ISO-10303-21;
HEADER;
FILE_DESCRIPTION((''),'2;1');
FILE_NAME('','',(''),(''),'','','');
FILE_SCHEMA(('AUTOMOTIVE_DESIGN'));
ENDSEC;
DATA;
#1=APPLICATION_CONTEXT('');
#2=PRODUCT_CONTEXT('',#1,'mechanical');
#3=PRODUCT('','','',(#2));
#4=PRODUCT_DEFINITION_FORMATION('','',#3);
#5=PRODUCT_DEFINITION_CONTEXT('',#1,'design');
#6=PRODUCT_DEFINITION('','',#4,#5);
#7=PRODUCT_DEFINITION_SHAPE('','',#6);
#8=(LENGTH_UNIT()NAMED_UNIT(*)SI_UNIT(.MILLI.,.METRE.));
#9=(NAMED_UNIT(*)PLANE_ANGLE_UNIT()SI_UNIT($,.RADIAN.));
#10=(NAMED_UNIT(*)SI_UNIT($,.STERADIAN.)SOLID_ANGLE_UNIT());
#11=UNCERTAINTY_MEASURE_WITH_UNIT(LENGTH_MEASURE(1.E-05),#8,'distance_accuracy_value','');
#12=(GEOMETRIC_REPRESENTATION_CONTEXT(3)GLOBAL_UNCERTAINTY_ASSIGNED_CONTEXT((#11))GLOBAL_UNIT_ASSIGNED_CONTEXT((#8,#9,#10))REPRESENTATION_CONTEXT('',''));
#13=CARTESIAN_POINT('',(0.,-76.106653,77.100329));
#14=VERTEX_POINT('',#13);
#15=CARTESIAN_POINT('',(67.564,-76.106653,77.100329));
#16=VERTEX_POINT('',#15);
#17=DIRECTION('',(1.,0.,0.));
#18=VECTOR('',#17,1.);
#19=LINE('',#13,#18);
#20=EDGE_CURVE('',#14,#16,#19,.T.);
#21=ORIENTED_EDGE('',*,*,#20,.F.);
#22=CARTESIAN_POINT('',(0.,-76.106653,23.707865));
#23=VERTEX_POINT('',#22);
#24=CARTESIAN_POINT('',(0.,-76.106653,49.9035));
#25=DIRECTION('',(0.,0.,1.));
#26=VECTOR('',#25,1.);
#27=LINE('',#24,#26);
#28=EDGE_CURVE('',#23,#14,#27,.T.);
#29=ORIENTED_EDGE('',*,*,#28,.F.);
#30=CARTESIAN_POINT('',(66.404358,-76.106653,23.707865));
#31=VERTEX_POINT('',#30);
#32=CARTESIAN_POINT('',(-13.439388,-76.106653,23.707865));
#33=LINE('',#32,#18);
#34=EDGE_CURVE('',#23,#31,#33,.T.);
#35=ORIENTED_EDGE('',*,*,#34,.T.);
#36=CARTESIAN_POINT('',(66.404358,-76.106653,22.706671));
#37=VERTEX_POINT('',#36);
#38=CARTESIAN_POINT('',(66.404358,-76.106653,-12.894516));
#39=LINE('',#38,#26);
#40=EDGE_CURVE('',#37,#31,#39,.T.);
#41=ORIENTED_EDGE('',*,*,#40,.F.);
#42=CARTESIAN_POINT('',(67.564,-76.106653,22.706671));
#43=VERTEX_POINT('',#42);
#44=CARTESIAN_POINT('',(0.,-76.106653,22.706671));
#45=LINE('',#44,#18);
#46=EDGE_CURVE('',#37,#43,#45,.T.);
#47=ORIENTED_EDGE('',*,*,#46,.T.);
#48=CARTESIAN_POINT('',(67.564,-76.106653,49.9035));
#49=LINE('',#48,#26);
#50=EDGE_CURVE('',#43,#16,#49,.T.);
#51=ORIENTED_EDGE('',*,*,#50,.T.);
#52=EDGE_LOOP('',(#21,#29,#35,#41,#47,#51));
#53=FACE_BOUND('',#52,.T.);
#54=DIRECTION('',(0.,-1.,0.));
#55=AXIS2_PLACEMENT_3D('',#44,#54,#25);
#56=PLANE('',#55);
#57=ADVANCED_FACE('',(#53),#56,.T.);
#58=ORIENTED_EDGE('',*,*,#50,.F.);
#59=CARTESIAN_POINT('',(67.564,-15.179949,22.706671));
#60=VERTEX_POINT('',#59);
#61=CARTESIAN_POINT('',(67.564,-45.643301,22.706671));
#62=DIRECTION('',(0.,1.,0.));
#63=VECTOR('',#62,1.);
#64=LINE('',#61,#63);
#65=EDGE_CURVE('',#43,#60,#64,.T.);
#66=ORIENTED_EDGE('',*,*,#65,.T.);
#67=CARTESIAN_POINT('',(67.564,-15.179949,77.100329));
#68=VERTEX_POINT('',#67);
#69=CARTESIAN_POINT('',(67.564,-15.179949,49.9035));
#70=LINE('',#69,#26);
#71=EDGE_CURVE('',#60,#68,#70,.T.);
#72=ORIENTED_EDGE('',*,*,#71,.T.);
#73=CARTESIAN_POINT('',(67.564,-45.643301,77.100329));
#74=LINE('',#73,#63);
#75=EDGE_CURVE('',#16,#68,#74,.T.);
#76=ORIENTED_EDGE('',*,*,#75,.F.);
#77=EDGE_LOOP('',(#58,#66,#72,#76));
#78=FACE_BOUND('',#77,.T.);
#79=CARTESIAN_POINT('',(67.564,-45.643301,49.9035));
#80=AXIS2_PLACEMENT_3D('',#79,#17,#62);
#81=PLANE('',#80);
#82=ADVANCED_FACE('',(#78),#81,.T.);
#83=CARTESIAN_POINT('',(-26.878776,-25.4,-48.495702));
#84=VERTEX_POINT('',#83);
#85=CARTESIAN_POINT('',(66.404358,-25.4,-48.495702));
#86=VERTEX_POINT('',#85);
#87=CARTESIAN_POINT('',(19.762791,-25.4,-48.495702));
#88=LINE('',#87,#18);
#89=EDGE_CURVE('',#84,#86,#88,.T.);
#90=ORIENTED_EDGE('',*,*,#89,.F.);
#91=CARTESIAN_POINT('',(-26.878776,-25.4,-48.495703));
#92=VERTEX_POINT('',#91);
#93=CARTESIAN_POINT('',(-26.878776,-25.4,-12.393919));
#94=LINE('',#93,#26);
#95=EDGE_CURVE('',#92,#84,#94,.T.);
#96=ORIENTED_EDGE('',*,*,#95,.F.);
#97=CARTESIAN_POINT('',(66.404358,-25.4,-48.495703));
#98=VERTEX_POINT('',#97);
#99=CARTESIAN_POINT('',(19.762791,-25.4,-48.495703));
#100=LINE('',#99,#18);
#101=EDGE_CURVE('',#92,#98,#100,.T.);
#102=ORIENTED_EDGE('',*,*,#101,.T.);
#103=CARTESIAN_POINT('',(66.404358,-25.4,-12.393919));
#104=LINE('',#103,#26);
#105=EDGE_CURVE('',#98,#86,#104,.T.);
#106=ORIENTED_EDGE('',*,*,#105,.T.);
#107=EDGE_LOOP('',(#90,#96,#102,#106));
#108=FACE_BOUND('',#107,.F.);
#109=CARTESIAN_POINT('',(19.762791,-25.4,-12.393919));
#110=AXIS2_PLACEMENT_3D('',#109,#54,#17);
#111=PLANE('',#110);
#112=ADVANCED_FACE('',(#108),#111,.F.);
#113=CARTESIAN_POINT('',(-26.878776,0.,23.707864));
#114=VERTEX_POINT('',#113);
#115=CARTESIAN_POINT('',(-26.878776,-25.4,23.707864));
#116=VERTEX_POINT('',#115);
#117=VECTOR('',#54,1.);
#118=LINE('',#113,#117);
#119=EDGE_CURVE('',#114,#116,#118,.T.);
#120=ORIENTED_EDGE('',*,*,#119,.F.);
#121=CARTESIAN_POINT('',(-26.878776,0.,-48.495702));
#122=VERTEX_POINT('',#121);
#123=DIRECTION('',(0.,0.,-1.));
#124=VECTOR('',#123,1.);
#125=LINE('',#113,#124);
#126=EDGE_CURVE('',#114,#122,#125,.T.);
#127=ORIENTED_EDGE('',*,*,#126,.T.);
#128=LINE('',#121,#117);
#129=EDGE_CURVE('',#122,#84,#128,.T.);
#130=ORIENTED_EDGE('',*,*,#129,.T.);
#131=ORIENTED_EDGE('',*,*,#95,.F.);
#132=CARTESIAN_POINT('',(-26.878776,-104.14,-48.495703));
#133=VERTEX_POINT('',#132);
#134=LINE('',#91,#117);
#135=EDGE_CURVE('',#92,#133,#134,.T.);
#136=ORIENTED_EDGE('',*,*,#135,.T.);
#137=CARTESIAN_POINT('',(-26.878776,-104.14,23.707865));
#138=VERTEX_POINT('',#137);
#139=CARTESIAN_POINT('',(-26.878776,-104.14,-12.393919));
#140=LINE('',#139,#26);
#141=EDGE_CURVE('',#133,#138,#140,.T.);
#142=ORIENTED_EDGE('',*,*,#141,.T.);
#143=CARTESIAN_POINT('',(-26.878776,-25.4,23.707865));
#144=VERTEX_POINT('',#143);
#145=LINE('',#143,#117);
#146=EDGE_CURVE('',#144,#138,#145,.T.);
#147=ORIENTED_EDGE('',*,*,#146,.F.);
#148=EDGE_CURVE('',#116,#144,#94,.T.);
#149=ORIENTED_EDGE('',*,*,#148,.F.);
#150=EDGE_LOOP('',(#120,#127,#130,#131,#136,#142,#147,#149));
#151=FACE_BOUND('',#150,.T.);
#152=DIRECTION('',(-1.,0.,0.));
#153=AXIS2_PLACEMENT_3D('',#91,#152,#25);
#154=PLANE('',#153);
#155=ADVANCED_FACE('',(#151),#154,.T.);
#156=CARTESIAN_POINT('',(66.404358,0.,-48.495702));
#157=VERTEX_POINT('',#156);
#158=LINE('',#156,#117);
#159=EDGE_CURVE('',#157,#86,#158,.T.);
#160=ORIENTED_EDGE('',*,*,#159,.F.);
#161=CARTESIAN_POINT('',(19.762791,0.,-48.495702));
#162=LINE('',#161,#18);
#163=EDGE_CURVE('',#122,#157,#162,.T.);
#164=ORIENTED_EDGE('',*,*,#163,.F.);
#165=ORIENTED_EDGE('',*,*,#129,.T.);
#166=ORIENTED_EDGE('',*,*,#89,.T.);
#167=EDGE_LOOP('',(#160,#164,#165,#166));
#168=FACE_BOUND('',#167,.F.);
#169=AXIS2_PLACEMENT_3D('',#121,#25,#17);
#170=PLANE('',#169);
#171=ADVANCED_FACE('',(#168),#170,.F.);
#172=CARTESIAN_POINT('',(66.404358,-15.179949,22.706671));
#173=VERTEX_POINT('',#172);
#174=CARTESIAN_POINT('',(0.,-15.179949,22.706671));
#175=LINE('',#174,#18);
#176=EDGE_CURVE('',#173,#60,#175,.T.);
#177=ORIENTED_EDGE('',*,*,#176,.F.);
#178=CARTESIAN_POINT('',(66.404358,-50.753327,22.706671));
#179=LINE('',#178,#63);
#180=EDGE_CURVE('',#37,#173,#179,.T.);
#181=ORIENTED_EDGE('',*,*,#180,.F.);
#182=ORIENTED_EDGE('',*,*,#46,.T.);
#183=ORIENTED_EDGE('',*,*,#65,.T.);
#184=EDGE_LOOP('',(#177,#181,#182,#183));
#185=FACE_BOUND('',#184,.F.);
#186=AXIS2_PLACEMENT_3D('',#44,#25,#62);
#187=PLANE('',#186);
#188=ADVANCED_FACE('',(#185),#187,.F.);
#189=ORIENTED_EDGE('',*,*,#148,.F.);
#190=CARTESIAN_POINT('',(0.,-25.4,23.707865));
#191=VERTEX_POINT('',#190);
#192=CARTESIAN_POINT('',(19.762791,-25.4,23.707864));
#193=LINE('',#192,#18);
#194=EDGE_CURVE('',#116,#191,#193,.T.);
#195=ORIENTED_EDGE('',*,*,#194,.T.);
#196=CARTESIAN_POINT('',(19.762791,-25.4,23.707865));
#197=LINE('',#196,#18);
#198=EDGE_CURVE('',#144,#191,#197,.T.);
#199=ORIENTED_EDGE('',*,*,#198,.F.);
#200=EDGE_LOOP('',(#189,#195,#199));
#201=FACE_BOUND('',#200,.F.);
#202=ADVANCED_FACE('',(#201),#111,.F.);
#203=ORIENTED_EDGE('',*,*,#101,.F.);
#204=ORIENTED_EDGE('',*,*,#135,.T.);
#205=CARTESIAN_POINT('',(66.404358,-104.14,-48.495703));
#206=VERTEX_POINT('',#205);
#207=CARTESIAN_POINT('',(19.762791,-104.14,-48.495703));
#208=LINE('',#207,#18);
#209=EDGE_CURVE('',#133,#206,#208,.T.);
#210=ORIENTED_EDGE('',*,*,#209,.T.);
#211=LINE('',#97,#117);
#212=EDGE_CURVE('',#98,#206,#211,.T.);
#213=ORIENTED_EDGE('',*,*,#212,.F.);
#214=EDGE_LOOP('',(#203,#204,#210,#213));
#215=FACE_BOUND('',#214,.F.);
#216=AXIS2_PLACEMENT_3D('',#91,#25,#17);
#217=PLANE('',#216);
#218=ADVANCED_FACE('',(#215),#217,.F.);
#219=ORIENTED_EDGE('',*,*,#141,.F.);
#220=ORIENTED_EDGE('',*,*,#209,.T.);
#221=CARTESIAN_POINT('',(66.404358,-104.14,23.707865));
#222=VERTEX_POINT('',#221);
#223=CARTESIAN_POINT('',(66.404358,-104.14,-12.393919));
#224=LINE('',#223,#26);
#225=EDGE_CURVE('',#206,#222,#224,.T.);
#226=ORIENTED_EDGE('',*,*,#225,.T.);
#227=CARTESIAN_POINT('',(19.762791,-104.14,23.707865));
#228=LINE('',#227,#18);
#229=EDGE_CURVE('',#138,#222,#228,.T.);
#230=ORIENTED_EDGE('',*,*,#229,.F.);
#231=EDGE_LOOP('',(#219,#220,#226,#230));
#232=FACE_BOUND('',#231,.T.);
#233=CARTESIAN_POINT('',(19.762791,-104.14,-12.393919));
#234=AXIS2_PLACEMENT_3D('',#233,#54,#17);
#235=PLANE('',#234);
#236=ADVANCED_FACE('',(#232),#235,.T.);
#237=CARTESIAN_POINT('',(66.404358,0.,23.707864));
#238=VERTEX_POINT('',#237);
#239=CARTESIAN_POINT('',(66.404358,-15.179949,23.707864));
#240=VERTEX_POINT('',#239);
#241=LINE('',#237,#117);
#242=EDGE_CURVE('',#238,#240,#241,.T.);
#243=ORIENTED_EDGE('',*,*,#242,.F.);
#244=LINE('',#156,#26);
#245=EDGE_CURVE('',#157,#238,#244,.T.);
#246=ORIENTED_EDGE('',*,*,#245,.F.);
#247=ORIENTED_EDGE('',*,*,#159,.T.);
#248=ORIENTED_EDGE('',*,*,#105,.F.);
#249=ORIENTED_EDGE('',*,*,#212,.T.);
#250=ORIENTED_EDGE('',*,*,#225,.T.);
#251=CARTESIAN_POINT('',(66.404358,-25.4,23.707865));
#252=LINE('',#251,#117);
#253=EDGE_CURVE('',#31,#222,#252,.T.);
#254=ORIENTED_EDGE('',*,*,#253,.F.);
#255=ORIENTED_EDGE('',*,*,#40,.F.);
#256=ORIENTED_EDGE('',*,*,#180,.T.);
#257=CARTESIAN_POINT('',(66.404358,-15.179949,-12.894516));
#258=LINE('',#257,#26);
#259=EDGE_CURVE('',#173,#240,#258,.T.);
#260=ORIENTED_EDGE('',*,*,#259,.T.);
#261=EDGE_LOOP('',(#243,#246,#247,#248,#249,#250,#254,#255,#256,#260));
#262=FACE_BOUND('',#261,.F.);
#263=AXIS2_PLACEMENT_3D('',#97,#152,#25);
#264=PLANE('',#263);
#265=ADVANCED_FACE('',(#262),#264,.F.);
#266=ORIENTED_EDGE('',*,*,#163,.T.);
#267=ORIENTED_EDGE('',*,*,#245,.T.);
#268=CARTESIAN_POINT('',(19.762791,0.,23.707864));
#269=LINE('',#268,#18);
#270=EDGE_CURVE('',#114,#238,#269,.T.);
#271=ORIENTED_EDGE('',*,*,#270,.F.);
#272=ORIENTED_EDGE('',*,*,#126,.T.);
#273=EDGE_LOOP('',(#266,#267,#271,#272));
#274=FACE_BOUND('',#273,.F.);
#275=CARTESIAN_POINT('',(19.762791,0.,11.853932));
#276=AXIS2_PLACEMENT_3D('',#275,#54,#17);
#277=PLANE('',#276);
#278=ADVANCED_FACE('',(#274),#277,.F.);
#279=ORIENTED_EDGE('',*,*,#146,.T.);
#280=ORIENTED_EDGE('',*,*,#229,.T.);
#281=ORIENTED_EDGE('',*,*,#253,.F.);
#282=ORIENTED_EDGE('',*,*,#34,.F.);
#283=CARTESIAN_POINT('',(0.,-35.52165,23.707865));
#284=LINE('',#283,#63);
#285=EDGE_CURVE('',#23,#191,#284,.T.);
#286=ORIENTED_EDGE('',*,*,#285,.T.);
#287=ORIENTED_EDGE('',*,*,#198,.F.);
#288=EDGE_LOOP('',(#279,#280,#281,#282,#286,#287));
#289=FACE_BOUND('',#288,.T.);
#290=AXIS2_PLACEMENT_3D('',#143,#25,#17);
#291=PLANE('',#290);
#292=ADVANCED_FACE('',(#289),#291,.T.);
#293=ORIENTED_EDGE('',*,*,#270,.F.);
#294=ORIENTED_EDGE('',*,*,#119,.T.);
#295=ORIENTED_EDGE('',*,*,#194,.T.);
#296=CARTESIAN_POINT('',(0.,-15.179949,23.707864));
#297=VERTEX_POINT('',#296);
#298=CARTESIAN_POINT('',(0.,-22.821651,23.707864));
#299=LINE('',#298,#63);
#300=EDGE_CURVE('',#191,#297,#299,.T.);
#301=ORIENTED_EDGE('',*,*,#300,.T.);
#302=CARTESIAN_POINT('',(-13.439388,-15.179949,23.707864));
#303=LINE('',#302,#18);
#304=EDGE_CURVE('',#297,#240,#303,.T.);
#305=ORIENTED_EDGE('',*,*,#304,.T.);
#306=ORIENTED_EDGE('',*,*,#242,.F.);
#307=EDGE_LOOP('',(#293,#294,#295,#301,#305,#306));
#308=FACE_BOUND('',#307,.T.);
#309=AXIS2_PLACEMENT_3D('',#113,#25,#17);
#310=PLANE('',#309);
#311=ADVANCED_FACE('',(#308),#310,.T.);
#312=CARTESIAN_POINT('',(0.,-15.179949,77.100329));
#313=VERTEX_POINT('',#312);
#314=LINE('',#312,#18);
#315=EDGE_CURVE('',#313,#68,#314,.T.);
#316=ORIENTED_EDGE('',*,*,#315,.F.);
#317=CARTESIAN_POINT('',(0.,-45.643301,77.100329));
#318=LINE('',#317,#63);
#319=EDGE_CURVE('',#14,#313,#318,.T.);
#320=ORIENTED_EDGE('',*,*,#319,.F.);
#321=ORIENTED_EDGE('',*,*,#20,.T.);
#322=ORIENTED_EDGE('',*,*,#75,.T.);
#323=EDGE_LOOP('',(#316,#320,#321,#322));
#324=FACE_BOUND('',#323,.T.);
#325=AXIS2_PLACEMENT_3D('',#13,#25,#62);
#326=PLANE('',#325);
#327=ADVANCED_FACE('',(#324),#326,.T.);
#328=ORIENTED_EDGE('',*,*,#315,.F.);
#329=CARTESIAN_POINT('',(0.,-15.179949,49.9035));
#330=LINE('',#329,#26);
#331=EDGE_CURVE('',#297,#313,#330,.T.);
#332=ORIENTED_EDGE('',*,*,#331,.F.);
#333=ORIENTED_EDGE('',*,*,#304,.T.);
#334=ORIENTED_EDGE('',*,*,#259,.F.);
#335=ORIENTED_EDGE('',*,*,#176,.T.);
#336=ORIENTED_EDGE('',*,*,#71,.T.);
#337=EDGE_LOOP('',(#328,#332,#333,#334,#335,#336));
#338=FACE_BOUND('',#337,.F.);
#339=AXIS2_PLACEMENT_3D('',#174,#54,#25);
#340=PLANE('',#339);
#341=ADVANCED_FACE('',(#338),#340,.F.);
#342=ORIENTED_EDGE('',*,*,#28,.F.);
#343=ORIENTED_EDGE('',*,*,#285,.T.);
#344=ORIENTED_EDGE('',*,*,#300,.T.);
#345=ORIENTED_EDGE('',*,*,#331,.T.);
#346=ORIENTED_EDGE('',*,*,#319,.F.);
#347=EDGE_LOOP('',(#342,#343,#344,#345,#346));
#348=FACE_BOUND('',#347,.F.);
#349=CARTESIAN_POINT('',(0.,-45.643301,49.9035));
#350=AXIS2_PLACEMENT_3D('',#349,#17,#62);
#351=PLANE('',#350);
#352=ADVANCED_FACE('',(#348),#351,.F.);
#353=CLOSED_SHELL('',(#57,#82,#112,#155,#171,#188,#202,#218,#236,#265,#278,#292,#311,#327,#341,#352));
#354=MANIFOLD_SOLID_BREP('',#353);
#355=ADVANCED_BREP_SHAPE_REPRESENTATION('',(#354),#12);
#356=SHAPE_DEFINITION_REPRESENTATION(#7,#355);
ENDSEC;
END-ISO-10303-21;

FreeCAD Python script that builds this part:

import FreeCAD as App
import Part
import Sketcher

V = App.Vector
Q = App.Units.Quantity


def add_polygon(sketch, points):
    """Adds a closed chain of lines whose ends are joined by coincident constraints."""
    first, n = sketch.GeometryCount, len(points)
    for a, b in zip(points, points[1:] + points[:1]):
        sketch.addGeometry(Part.LineSegment(App.Vector(*a, 0), App.Vector(*b, 0)), False)
    for i in range(n):
        sketch.addConstraint(Sketcher.Constraint("Coincident", first + i, 2, first + (i + 1) % n, 1))

doc = App.newDocument("Part")
body = doc.addObject("PartDesign::Body", "Body")

# Sketch on XZ plane
sketch1 = body.newObject("Sketcher::SketchObject", "Sketch")
sketch1.AttachmentSupport = (doc.getObject("XZ_Plane"), [""])
sketch1.MapMode = "FlatFace"
add_polygon(sketch1, [(-27, -48), (66, -48), (66, 24), (-27, 24)])  # lines 0-3
sketch1.addConstraint([
    Sketcher.Constraint("Horizontal", 0),
    Sketcher.Constraint("Vertical", 1),
    Sketcher.Constraint("Horizontal", 2),
    Sketcher.Constraint("Vertical", 3),
    Sketcher.Constraint("DistanceX", 0, 1, 0, 2, 93.283134),
    Sketcher.Constraint("DistanceY", 1, 1, 1, 2, 72.203566),
    Sketcher.Constraint("DistanceX", -1, 1, 0, 2, 66.404358),
    Sketcher.Constraint("DistanceY", 0, 2, -1, 1, 48.495702),
])
pad1 = body.newObject("PartDesign::Pad", "Pad")
pad1.Profile = sketch1
pad1.Length = Q("1 in")

# Sketch on XZ plane
sketch2 = body.newObject("Sketcher::SketchObject", "Sketch001")
sketch2.AttachmentSupport = (doc.getObject("XZ_Plane"), [""])
sketch2.MapMode = "FlatFace"
sketch2.AttachmentOffset = App.Placement(V(0, 0, 1 * 25.4), App.Rotation())
add_polygon(sketch2, [(-27, 24), (-27, -48), (66, -48), (66, 24)])  # lines 0-3
sketch2.addConstraint([
    Sketcher.Constraint("Vertical", 0),
    Sketcher.Constraint("Horizontal", 1),
    Sketcher.Constraint("Vertical", 2),
    Sketcher.Constraint("Horizontal", 3),
    Sketcher.Constraint("DistanceY", 0, 2, 0, 1, 72.203568),
    Sketcher.Constraint("DistanceX", 1, 1, 1, 2, 93.283134),
    Sketcher.Constraint("DistanceX", -1, 1, 1, 2, 66.404358),
    Sketcher.Constraint("DistanceY", 0, 2, -1, 1, 48.495703),
])
pad2 = body.newObject("PartDesign::Pad", "Pad001")
pad2.Profile = sketch2
pad2.Length = Q("3.1 in")

# Sketch on YZ plane
sketch3 = body.newObject("Sketcher::SketchObject", "Sketch002")
sketch3.AttachmentSupport = (doc.getObject("YZ_Plane"), [""])
sketch3.MapMode = "FlatFace"
add_polygon(sketch3, [(-76, 77), (-76, 23), (-15, 23), (-15, 77)])  # lines 0-3
sketch3.addConstraint([
    Sketcher.Constraint("Vertical", 0),
    Sketcher.Constraint("Horizontal", 1),
    Sketcher.Constraint("Vertical", 2),
    Sketcher.Constraint("Horizontal", 3),
    Sketcher.Constraint("DistanceY", 0, 2, 0, 1, 54.393658),
    Sketcher.Constraint("DistanceX", 1, 1, 1, 2, 60.926704),
    Sketcher.Constraint("DistanceY", -1, 1, 0, 2, 22.706671),
    Sketcher.Constraint("DistanceX", 1, 2, -1, 1, 15.179949),
])
pad3 = body.newObject("PartDesign::Pad", "Pad002")
pad3.Profile = sketch3
pad3.Length = Q("2.66 in")

doc.recompute()
